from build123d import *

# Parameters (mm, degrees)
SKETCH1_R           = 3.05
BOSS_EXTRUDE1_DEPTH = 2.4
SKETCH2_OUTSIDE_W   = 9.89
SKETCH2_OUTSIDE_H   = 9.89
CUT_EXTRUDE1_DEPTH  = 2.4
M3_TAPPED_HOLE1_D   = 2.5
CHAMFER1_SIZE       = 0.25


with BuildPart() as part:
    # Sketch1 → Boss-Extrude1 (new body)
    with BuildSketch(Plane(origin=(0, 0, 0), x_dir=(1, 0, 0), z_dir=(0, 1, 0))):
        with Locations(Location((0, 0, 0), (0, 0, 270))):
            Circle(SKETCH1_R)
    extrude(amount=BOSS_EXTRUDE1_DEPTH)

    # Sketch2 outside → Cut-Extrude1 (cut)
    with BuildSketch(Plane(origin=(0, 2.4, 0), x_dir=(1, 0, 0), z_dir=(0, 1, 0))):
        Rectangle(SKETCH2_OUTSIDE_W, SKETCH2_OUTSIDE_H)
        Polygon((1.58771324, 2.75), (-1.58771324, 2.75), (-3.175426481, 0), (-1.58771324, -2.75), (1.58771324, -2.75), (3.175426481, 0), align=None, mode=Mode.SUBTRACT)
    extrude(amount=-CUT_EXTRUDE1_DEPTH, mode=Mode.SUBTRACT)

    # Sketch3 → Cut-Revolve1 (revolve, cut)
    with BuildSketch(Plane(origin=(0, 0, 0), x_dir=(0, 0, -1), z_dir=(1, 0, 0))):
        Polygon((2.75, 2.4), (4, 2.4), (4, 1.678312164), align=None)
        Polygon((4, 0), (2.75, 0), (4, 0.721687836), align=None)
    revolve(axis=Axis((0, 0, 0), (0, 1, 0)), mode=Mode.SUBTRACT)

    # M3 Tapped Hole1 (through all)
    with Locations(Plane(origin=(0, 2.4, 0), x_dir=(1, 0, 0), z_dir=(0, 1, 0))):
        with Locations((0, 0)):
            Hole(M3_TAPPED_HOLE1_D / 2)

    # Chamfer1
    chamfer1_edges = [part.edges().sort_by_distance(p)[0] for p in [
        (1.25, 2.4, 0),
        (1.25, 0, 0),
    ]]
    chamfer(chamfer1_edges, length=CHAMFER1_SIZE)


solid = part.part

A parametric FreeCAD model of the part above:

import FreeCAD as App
import Part
import Sketcher

V = App.Vector
Q = App.Units.Quantity


def edges_at(feature, points):
    """Names of the edges that pass closest to the given points."""
    edges = feature.Shape.Edges
    near = lambda p: min(range(len(edges)), key=lambda i: edges[i].distToShape(Part.Vertex(*p))[0])
    return sorted({f"Edge{near(p) + 1}" for p in points})


def add_polygon(sketch, points):
    """Adds a closed chain of lines whose ends are joined by coincident constraints."""
    first, n = sketch.GeometryCount, len(points)
    for a, b in zip(points, points[1:] + points[:1]):
        sketch.addGeometry(Part.LineSegment(App.Vector(*a, 0), App.Vector(*b, 0)), False)
    for i in range(n):
        sketch.addConstraint(Sketcher.Constraint("Coincident", first + i, 2, first + (i + 1) % n, 1))

doc = App.newDocument("Part")
params = doc.addObject("Spreadsheet::Sheet", "Params")
for row, (alias, value) in enumerate([
    ("sketch1_diameter", "6.1 mm"),
    ("pad1_length", "2.4 mm"),
    ("sketch2_width", "9.89 mm"),
    ("pocket1_length", "2.4 mm"),
    ("sketch3_height", "1.25 mm"),
    ("groove_angle", "360 deg"),
    ("sketch4_diameter", "2.5 mm"),
    ("hole_diameter", "2.5 mm"),
    ("chamfer_size", "0.25 mm"),
], start=1):
    params.set(f"A{row}", alias)
    params.set(f"B{row}", "=" + value)
    params.setAlias(f"B{row}", alias)

body = doc.addObject("PartDesign::Body", "Body")

sketch1 = body.newObject("Sketcher::SketchObject", "Sketch")
sketch1.AttachmentSupport = (doc.getObject("XZ_Plane"), [""])
sketch1.MapMode = "FlatFace"
sketch1.addGeometry(Part.Circle(V(0, 0, 0), V(0, 0, 1), 3), False)
sketch1.addConstraint(Sketcher.Constraint("Coincident", 0, 3, -1, 1))
sketch1.addConstraint(Sketcher.Constraint("Diameter", 0, 6.1))
sketch1.setExpression("Constraints[1]", "Params.sketch1_diameter")
pad1 = body.newObject("PartDesign::Pad", "Pad")
pad1.Profile = sketch1
pad1.setExpression("Length", "Params.pad1_length")
pad1.Reversed = True

sketch2 = body.newObject("Sketcher::SketchObject", "Sketch001")
sketch2.AttachmentSupport = (doc.getObject("XZ_Plane"), [""])
sketch2.MapMode = "FlatFace"
sketch2.AttachmentOffset = App.Placement(V(0, 0, -2.4), App.Rotation())
add_polygon(sketch2, [(-4.9, -4.9), (-4.9, 4.9), (4.9, 4.9), (4.9, -4.9)])
add_polygon(sketch2, [(-1.6, -2.8), (1.6, -2.8), (3.2, 0), (1.6, 2.8), (-1.6, 2.8), (-3.2, 0)])
sketch2.addConstraint(Sketcher.Constraint("Vertical", 0))
sketch2.addConstraint(Sketcher.Constraint("Horizontal", 1))
sketch2.addConstraint(Sketcher.Constraint("Vertical", 2))
sketch2.addConstraint(Sketcher.Constraint("Horizontal", 3))
sketch2.addConstraint(Sketcher.Constraint("Horizontal", 4))
sketch2.addConstraint(Sketcher.Constraint("Horizontal", 7))
sketch2.addConstraint(Sketcher.Constraint("Symmetric", 0, 2, 2, 2, -1, 1))
sketch2.addConstraint(Sketcher.Constraint("Symmetric", 4, 2, 7, 2, -1, 1))
sketch2.addConstraint(Sketcher.Constraint("Symmetric", 5, 2, 8, 2, -1, 1))
sketch2.addConstraint(Sketcher.Constraint("PointOnObject", 5, 2, -1))
sketch2.addConstraint(Sketcher.Constraint("Parallel", 6, 9))
sketch2.addConstraint(Sketcher.Constraint("Vertical", 4, 2, 6, 2))
sketch2.addConstraint(Sketcher.Constraint("Equal", 3, 0))
sketch2.addConstraint(Sketcher.Constraint("Angle", 5, Q("60 deg")))
sketch2.addConstraint(Sketcher.Constraint("DistanceX", 1, 1, 1, 2, 9.89))
sketch2.addConstraint(Sketcher.Constraint("DistanceY", 4, 2, 6, 2, 5.5))
sketch2.addConstraint(Sketcher.Constraint("DistanceX", 4, 1, 4, 2, 3.175426))
sketch2.setExpression("Constraints[24]", "Params.sketch2_width")
pocket1 = body.newObject("PartDesign::Pocket", "Pocket")
pocket1.Profile = sketch2
pocket1.setExpression("Length", "Params.pocket1_length")
pocket1.Reversed = True

sketch3 = body.newObject("Sketcher::SketchObject", "Sketch002")
sketch3.AttachmentSupport = (doc.getObject("YZ_Plane"), [""])
sketch3.MapMode = "FlatFace"
add_polygon(sketch3, [(2.4, -4), (2.4, -2.8), (1.7, -4)])
add_polygon(sketch3, [(0, -2.8), (0, -4), (0.7, -4)])
sketch3.addConstraint(Sketcher.Constraint("Vertical", 0))
sketch3.addConstraint(Sketcher.Constraint("Horizontal", 2))
sketch3.addConstraint(Sketcher.Constraint("Vertical", 3))
sketch3.addConstraint(Sketcher.Constraint("Horizontal", 4))
sketch3.addConstraint(Sketcher.Constraint("PointOnObject", 3, 2, -2))
sketch3.addConstraint(Sketcher.Constraint("Horizontal", 2, 2, 3, 2))
sketch3.addConstraint(Sketcher.Constraint("Horizontal", 0, 2, 5, 2))
sketch3.addConstraint(Sketcher.Constraint("Equal", 2, 4))
sketch3.addConstraint(Sketcher.Constraint("Angle", 1, Q("-120 deg")))
sketch3.addConstraint(Sketcher.Constraint("DistanceY", 1, 2, -1, 1, 4.0))
sketch3.addConstraint(Sketcher.Constraint("DistanceY", 0, 1, 0, 2, 1.25))
sketch3.addConstraint(Sketcher.Constraint("DistanceX", -1, 1, 0, 2, 2.4))
sketch3.setExpression("Constraints[16]", "Params.sketch3_height")
groove = body.newObject("PartDesign::Groove", "Groove")
groove.Profile = sketch3
groove.ReferenceAxis = (sketch3, ["H_Axis"])
groove.setExpression("Angle", "Params.groove_angle")

sketch4 = body.newObject("Sketcher::SketchObject", "Sketch003")
sketch4.AttachmentSupport = (doc.getObject("XZ_Plane"), [""])
sketch4.MapMode = "FlatFace"
sketch4.AttachmentOffset = App.Placement(V(0, 0, -2.4), App.Rotation())
sketch4.addGeometry(Part.Circle(V(0, 0, 0), V(0, 0, 1), 1.2), False)
sketch4.addConstraint(Sketcher.Constraint("Coincident", 0, 3, -1, 1))
sketch4.addConstraint(Sketcher.Constraint("Diameter", 0, 2.5))
sketch4.setExpression("Constraints[1]", "Params.sketch4_diameter")
doc.recompute()
hole = body.newObject("PartDesign::Hole", "Hole")
hole.Profile = sketch4
hole.ThreadType = "None"
hole.setExpression("Diameter", "Params.hole_diameter")
hole.DepthType = "ThroughAll"
hole.Reversed = True
doc.recompute()

chamfer = body.newObject("PartDesign::Chamfer", "Chamfer")
chamfer.Base = (hole, edges_at(hole, [(1.25, 2.4, 0), (1.25, 0, 0)]))
chamfer.setExpression("Size", "Params.chamfer_size")

doc.recompute()
